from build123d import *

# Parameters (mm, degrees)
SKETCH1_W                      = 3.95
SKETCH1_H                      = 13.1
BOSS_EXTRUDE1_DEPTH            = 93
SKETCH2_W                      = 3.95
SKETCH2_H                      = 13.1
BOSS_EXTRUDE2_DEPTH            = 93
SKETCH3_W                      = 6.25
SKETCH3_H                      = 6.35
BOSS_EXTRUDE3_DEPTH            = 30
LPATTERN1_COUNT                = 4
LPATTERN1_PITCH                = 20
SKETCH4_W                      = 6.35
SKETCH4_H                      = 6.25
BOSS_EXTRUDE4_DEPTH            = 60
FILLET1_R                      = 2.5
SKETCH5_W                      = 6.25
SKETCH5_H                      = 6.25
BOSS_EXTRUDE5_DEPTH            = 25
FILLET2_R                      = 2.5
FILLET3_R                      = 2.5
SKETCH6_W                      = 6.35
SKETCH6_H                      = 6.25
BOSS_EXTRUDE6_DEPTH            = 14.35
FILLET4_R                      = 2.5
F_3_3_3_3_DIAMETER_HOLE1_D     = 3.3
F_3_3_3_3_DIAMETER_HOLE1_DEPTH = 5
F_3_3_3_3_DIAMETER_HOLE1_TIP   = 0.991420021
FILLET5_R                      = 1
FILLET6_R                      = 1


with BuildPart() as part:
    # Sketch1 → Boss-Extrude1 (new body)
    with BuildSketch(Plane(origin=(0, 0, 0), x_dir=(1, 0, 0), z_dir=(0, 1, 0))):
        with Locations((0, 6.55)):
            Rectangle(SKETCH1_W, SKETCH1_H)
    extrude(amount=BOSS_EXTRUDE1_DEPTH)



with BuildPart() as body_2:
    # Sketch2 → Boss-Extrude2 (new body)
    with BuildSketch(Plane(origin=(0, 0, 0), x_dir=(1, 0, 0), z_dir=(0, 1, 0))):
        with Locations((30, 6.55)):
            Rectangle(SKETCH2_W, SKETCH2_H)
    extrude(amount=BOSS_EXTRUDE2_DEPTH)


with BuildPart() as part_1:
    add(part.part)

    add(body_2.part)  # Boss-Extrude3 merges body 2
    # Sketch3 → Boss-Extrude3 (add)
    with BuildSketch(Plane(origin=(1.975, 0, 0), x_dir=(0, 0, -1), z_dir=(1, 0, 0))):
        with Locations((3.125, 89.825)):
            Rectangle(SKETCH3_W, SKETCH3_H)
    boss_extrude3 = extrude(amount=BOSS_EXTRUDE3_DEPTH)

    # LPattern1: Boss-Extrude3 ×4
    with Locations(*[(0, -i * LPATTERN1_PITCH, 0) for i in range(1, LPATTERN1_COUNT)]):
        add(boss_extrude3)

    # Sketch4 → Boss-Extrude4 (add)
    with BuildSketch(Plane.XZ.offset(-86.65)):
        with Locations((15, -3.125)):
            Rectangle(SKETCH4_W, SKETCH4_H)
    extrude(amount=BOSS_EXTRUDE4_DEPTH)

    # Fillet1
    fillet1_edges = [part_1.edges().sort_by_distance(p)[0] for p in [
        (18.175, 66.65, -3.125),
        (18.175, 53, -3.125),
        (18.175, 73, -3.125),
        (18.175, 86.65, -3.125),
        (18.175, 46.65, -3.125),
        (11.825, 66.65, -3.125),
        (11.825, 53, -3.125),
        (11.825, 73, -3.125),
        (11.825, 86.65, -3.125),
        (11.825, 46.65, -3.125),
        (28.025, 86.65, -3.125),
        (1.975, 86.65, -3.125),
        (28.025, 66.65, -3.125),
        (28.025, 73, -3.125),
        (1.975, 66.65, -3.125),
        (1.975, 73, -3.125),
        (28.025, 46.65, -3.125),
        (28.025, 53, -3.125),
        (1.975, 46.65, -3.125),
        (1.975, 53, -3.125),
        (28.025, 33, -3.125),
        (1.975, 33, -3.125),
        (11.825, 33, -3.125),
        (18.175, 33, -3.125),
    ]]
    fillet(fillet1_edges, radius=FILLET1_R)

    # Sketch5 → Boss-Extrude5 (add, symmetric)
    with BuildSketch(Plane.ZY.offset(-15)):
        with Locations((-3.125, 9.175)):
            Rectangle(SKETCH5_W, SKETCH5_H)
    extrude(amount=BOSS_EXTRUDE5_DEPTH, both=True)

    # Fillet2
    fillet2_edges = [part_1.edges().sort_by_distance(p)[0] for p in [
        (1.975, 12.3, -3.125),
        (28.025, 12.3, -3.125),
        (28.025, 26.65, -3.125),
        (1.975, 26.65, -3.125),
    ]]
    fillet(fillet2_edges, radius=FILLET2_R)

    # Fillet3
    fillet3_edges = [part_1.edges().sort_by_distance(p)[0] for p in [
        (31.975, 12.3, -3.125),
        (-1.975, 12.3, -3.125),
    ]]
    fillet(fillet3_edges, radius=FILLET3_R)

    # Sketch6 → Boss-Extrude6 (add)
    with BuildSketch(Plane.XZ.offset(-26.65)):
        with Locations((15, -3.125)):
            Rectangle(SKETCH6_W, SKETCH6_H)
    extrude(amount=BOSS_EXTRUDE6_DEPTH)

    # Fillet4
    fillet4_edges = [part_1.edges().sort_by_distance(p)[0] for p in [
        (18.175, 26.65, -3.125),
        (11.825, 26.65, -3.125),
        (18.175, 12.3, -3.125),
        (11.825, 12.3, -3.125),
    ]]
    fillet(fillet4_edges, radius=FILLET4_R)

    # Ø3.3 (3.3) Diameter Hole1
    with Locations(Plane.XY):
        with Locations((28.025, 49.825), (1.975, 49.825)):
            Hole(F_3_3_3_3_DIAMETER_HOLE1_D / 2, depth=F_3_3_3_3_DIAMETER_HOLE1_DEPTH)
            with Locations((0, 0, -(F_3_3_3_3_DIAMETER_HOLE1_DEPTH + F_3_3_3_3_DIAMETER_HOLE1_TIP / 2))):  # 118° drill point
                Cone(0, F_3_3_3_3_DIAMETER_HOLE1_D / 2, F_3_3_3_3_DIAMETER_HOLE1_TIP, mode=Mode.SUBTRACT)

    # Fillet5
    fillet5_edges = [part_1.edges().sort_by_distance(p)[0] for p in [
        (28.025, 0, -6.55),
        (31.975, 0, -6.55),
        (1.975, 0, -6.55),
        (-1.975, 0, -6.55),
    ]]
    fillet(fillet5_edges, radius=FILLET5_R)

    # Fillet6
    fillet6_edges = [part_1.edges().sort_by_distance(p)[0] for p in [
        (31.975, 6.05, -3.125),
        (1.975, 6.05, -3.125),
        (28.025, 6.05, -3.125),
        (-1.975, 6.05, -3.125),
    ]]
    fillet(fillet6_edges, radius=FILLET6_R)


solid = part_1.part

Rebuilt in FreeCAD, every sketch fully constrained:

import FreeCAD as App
import Part
import Sketcher

V = App.Vector
Q = App.Units.Quantity


def edges_at(feature, points):
    """Names of the edges that pass closest to the given points."""
    edges = feature.Shape.Edges
    near = lambda p: min(range(len(edges)), key=lambda i: edges[i].distToShape(Part.Vertex(*p))[0])
    return sorted({f"Edge{near(p) + 1}" for p in points})

doc = App.newDocument("Part")
body = doc.addObject("PartDesign::Body", "Body")

# Sketch on XZ plane
sketch1 = body.newObject("Sketcher::SketchObject", "Sketch")
sketch1.AttachmentSupport = (doc.getObject("XZ_Plane"), [""])
sketch1.MapMode = "FlatFace"
sketch1.addGeometry([
    Part.LineSegment(V(-2, -13.1, 0), V(-2, 0, 0)),
    Part.LineSegment(V(-2, 0, 0), V(2, 0, 0)),
    Part.LineSegment(V(2, 0, 0), V(2, -13.1, 0)),
    Part.LineSegment(V(2, -13.1, 0), V(-2, -13.1, 0)),
], False)
sketch1.addConstraint([
    Sketcher.Constraint("Coincident", 0, 2, 1, 1),
    Sketcher.Constraint("Coincident", 1, 2, 2, 1),
    Sketcher.Constraint("Coincident", 2, 2, 3, 1),
    Sketcher.Constraint("Coincident", 3, 2, 0, 1),
    Sketcher.Constraint("Vertical", 0),
    Sketcher.Constraint("Horizontal", 1),
    Sketcher.Constraint("Vertical", 2),
    Sketcher.Constraint("Horizontal", 3),
    Sketcher.Constraint("Symmetric", 0, 2, 1, 2, -1, 1),
    Sketcher.Constraint("DistanceY", 0, 1, 0, 2, Q("13.1 mm")),
    Sketcher.Constraint("DistanceX", 1, 1, 1, 2, Q("3.95 mm")),
])
pad1 = body.newObject("PartDesign::Pad", "Pad")
pad1.Profile = sketch1
pad1.Length = 93
pad1.Reversed = True
body2 = doc.addObject("PartDesign::Body", "Body001")

# Sketch on XZ plane
sketch2 = body2.newObject("Sketcher::SketchObject", "Sketch001")
sketch2.AttachmentSupport = (doc.getObject("XZ_Plane001"), [""])
sketch2.MapMode = "FlatFace"
sketch2.addGeometry([
    Part.LineSegment(V(28, -13.1, 0), V(28, 0, 0)),
    Part.LineSegment(V(28, 0, 0), V(32, 0, 0)),
    Part.LineSegment(V(32, 0, 0), V(32, -13.1, 0)),
    Part.LineSegment(V(32, -13.1, 0), V(28, -13.1, 0)),
], False)
sketch2.addConstraint([
    Sketcher.Constraint("Coincident", 0, 2, 1, 1),
    Sketcher.Constraint("Coincident", 1, 2, 2, 1),
    Sketcher.Constraint("Coincident", 2, 2, 3, 1),
    Sketcher.Constraint("Coincident", 3, 2, 0, 1),
    Sketcher.Constraint("Vertical", 0),
    Sketcher.Constraint("Horizontal", 1),
    Sketcher.Constraint("Vertical", 2),
    Sketcher.Constraint("Horizontal", 3),
    Sketcher.Constraint("PointOnObject", 0, 2, -1),
    Sketcher.Constraint("DistanceY", 0, 1, 0, 2, Q("13.1 mm")),
    Sketcher.Constraint("DistanceX", 1, 1, 1, 2, Q("3.95 mm")),
    Sketcher.Constraint("DistanceX", -1, 1, 0, 2, Q("28.025 mm")),
])
pad2 = body2.newObject("PartDesign::Pad", "Pad001")
pad2.Profile = sketch2
pad2.Length = 93
pad2.Reversed = True
body.AllowCompound = True
doc.recompute()

boolean = body.newObject("PartDesign::Boolean", "Boolean")
boolean.Type = "Fuse"
boolean.addObjects([body2])

# Sketch on YZ plane
sketch3 = body.newObject("Sketcher::SketchObject", "Sketch002")
sketch3.AttachmentSupport = (doc.getObject("YZ_Plane"), [""])
sketch3.MapMode = "FlatFace"
sketch3.AttachmentOffset = App.Placement(V(0, 0, 1.975), App.Rotation())
sketch3.addGeometry([
    Part.LineSegment(V(93, 0, 0), V(87, 0, 0)),
    Part.LineSegment(V(87, 0, 0), V(87, -6, 0)),
    Part.LineSegment(V(87, -6, 0), V(93, -6, 0)),
    Part.LineSegment(V(93, -6, 0), V(93, 0, 0)),
], False)
sketch3.addConstraint([
    Sketcher.Constraint("Coincident", 0, 2, 1, 1),
    Sketcher.Constraint("Coincident", 1, 2, 2, 1),
    Sketcher.Constraint("Coincident", 2, 2, 3, 1),
    Sketcher.Constraint("Coincident", 3, 2, 0, 1),
    Sketcher.Constraint("Horizontal", 0),
    Sketcher.Constraint("Vertical", 1),
    Sketcher.Constraint("Horizontal", 2),
    Sketcher.Constraint("Vertical", 3),
    Sketcher.Constraint("PointOnObject", 0, 2, -1),
    Sketcher.Constraint("DistanceX", -1, 1, 2, 2, Q("93 mm")),
    Sketcher.Constraint("DistanceX", 0, 2, 0, 1, Q("6.35 mm")),
    Sketcher.Constraint("DistanceY", 1, 2, 1, 1, Q("6.25 mm")),
])
pad3 = body.newObject("PartDesign::Pad", "Pad002")
pad3.Profile = sketch3
pad3.Length = 30
doc.recompute()

linearpattern = body.newObject("PartDesign::LinearPattern", "LinearPattern")
linearpattern.Originals = [pad3]
linearpattern.Direction = (doc.getObject("Y_Axis"), [""])
linearpattern.Mode = "offset"
linearpattern.Offset = 20
linearpattern.Occurrences = 4
linearpattern.Reversed = True
body.Tip = linearpattern

# Sketch on XZ plane
sketch4 = body.newObject("Sketcher::SketchObject", "Sketch003")
sketch4.AttachmentSupport = (doc.getObject("XZ_Plane"), [""])
sketch4.MapMode = "FlatFace"
sketch4.AttachmentOffset = App.Placement(V(0, 0, -86.65), App.Rotation())
sketch4.addGeometry([
    Part.LineSegment(V(12, 0, 0), V(12, -6, 0)),
    Part.LineSegment(V(12, -6, 0), V(18, -6, 0)),
    Part.LineSegment(V(18, -6, 0), V(18, 0, 0)),
    Part.LineSegment(V(18, 0, 0), V(12, 0, 0)),
], False)
sketch4.addConstraint([
    Sketcher.Constraint("Coincident", 0, 2, 1, 1),
    Sketcher.Constraint("Coincident", 1, 2, 2, 1),
    Sketcher.Constraint("Coincident", 2, 2, 3, 1),
    Sketcher.Constraint("Coincident", 3, 2, 0, 1),
    Sketcher.Constraint("Vertical", 0),
    Sketcher.Constraint("Horizontal", 1),
    Sketcher.Constraint("Vertical", 2),
    Sketcher.Constraint("Horizontal", 3),
    Sketcher.Constraint("PointOnObject", 2, 2, -1),
    Sketcher.Constraint("DistanceX", 1, 1, 1, 2, Q("6.35 mm")),
    Sketcher.Constraint("DistanceY", 0, 2, 0, 1, Q("6.25 mm")),
    Sketcher.Constraint("DistanceX", -1, 1, 0, 2, Q("11.825 mm")),
])
pad4 = body.newObject("PartDesign::Pad", "Pad003")
pad4.Profile = sketch4
pad4.Length = 60
doc.recompute()

fillet = body.newObject("PartDesign::Fillet", "Fillet")
fillet.Base = (pad4, edges_at(pad4, [
    (18.175, 66.65, -3.125),
    (18.175, 53, -3.125),
    (18.175, 73, -3.125),
    (18.175, 86.65, -3.125),
    (18.175, 46.65, -3.125),
    (11.825, 66.65, -3.125),
    (11.825, 53, -3.125),
    (11.825, 73, -3.125),
    (11.825, 86.65, -3.125),
    (11.825, 46.65, -3.125),
    (28.025, 86.65, -3.125),
    (1.975, 86.65, -3.125),
    (28.025, 66.65, -3.125),
    (28.025, 73, -3.125),
    (1.975, 66.65, -3.125),
    (1.975, 73, -3.125),
    (28.025, 46.65, -3.125),
    (28.025, 53, -3.125),
    (1.975, 46.65, -3.125),
    (1.975, 53, -3.125),
    (28.025, 33, -3.125),
    (1.975, 33, -3.125),
    (11.825, 33, -3.125),
    (18.175, 33, -3.125),
]))
fillet.Radius = 2.5

# Sketch on YZ plane
sketch5 = body.newObject("Sketcher::SketchObject", "Sketch004")
sketch5.AttachmentSupport = (doc.getObject("YZ_Plane"), [""])
sketch5.MapMode = "FlatFace"
sketch5.AttachmentOffset = App.Placement(V(0, 0, 15), App.Rotation())
sketch5.addGeometry([
    Part.LineSegment(V(12, -6, 0), V(6, -6, 0)),
    Part.LineSegment(V(6, -6, 0), V(6, 0, 0)),
    Part.LineSegment(V(6, 0, 0), V(12, 0, 0)),
    Part.LineSegment(V(12, 0, 0), V(12, -6, 0)),
], False)
sketch5.addConstraint([
    Sketcher.Constraint("Coincident", 0, 2, 1, 1),
    Sketcher.Constraint("Coincident", 1, 2, 2, 1),
    Sketcher.Constraint("Coincident", 2, 2, 3, 1),
    Sketcher.Constraint("Coincident", 3, 2, 0, 1),
    Sketcher.Constraint("Horizontal", 0),
    Sketcher.Constraint("Vertical", 1),
    Sketcher.Constraint("Horizontal", 2),
    Sketcher.Constraint("Vertical", 3),
    Sketcher.Constraint("PointOnObject", 1, 2, -1),
    Sketcher.Constraint("Equal", 2, 1),
    Sketcher.Constraint("DistanceX", 0, 2, 0, 1, Q("6.25 mm")),
    Sketcher.Constraint("DistanceX", -1, 1, 2, 2, Q("12.3 mm")),
])
pad5 = body.newObject("PartDesign::Pad", "Pad004")
pad5.Profile = sketch5
pad5.Length = 50
pad5.Midplane = True
doc.recompute()

fillet2 = body.newObject("PartDesign::Fillet", "Fillet001")
fillet2.Base = (pad5, edges_at(pad5, [
    (1.975, 12.3, -3.125),
    (28.025, 12.3, -3.125),
    (28.025, 26.65, -3.125),
    (1.975, 26.65, -3.125),
]))
fillet2.Radius = 2.5
doc.recompute()

fillet3 = body.newObject("PartDesign::Fillet", "Fillet002")
fillet3.Base = (fillet2, edges_at(fillet2, [(31.975, 12.3, -3.125), (-1.975, 12.3, -3.125)]))
fillet3.Radius = 2.5

# Sketch on XZ plane
sketch6 = body.newObject("Sketcher::SketchObject", "Sketch005")
sketch6.AttachmentSupport = (doc.getObject("XZ_Plane"), [""])
sketch6.MapMode = "FlatFace"
sketch6.AttachmentOffset = App.Placement(V(0, 0, -26.65), App.Rotation())
sketch6.addGeometry([
    Part.LineSegment(V(12, 0, 0), V(12, -6, 0)),
    Part.LineSegment(V(12, -6, 0), V(18, -6, 0)),
    Part.LineSegment(V(18, -6, 0), V(18, 0, 0)),
    Part.LineSegment(V(18, 0, 0), V(12, 0, 0)),
], False)
sketch6.addConstraint([
    Sketcher.Constraint("Coincident", 0, 2, 1, 1),
    Sketcher.Constraint("Coincident", 1, 2, 2, 1),
    Sketcher.Constraint("Coincident", 2, 2, 3, 1),
    Sketcher.Constraint("Coincident", 3, 2, 0, 1),
    Sketcher.Constraint("Vertical", 0),
    Sketcher.Constraint("Horizontal", 1),
    Sketcher.Constraint("Vertical", 2),
    Sketcher.Constraint("Horizontal", 3),
    Sketcher.Constraint("PointOnObject", 2, 2, -1),
    Sketcher.Constraint("DistanceX", 1, 1, 1, 2, Q("6.35 mm")),
    Sketcher.Constraint("DistanceY", 0, 2, 0, 1, Q("6.25 mm")),
    Sketcher.Constraint("DistanceX", -1, 1, 0, 2, Q("11.825 mm")),
])
pad6 = body.newObject("PartDesign::Pad", "Pad005")
pad6.Profile = sketch6
pad6.Length = 14.35
doc.recompute()

fillet4 = body.newObject("PartDesign::Fillet", "Fillet003")
fillet4.Base = (pad6, edges_at(pad6, [
    (18.175, 26.65, -3.125),
    (11.825, 26.65, -3.125),
    (18.175, 12.3, -3.125),
    (11.825, 12.3, -3.125),
]))
fillet4.Radius = 2.5

# Sketch on XY plane
sketch7 = body.newObject("Sketcher::SketchObject", "Sketch006")
sketch7.AttachmentSupport = (doc.getObject("XY_Plane"), [""])
sketch7.MapMode = "FlatFace"
sketch7.addGeometry([
    Part.Circle(V(28, 49.8, 0), V(0, 0, 1), 1.6),
    Part.Circle(V(2, 49.8, 0), V(0, 0, 1), 1.6),
], False)
sketch7.addConstraint([
    Sketcher.Constraint("Equal", 0, 1),
    Sketcher.Constraint("Horizontal", 0, 3, 1, 3),
    Sketcher.Constraint("Diameter", 0, Q("3.3 mm")),
    Sketcher.Constraint("DistanceX", 1, 3, 0, 3, Q("26.05 mm")),
    Sketcher.Constraint("DistanceX", -1, 1, 0, 3, Q("28.025 mm")),
    Sketcher.Constraint("DistanceY", -1, 1, 0, 3, Q("49.825 mm")),
])
doc.recompute()
hole = body.newObject("PartDesign::Hole", "Hole")
hole.Profile = sketch7
hole.ThreadType = "None"
hole.Diameter = 3.3
hole.DepthType = "Dimension"
hole.Depth = 5
hole.DrillPoint = "Angled"
hole.DrillPointAngle = 118
doc.recompute()

fillet5 = body.newObject("PartDesign::Fillet", "Fillet004")
fillet5.Base = (hole, edges_at(hole, [
    (28.025, 0, -6.55),
    (31.975, 0, -6.55),
    (1.975, 0, -6.55),
    (-1.975, 0, -6.55),
]))
fillet5.Radius = 1
doc.recompute()

fillet6 = body.newObject("PartDesign::Fillet", "Fillet005")
fillet6.Base = (fillet5, edges_at(fillet5, [
    (31.975, 6.05, -3.125),
    (1.975, 6.05, -3.125),
    (28.025, 6.05, -3.125),
    (-1.975, 6.05, -3.125),
]))
fillet6.Radius = 1

doc.recompute()
